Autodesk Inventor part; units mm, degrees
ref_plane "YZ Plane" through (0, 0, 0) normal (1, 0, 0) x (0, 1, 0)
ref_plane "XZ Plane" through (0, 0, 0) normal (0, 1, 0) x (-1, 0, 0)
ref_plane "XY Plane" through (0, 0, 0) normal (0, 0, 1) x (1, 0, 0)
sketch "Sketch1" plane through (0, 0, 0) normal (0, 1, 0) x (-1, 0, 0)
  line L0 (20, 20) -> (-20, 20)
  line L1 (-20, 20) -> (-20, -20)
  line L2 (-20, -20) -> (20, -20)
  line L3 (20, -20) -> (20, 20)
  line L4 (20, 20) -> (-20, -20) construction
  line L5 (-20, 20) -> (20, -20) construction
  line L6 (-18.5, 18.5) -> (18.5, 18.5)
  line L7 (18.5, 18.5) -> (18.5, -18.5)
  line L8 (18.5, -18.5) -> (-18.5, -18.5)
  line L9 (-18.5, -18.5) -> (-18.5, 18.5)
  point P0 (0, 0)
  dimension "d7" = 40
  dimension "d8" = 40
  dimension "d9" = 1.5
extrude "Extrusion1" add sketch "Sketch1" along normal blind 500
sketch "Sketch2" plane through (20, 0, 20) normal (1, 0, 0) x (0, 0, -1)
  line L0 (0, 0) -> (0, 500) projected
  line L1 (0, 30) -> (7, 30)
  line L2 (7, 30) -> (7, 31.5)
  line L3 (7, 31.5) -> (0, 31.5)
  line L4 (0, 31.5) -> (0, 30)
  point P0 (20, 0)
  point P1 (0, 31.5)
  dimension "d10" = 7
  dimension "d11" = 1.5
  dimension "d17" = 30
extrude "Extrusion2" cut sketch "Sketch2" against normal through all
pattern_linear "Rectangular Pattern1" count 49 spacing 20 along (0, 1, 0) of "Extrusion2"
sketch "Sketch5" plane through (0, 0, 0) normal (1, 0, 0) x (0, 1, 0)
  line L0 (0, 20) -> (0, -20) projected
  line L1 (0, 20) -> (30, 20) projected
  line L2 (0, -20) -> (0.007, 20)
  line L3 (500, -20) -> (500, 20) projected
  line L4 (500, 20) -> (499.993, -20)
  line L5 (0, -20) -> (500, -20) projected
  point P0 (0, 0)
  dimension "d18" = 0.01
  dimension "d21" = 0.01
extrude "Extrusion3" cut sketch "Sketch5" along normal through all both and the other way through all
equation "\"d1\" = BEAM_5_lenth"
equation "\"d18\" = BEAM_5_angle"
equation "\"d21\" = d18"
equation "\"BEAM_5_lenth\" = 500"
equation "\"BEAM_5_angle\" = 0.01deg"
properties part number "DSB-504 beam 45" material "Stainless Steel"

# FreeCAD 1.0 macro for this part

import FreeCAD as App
import Part
import Sketcher
from FreeCAD import Vector
Q = App.Units.Quantity


def add_polygon(sketch, points):
    """Adds a closed chain of lines whose ends are joined by coincident constraints."""
    first, n = sketch.GeometryCount, len(points)
    for a, b in zip(points, points[1:] + points[:1]):
        sketch.addGeometry(Part.LineSegment(App.Vector(*a, 0), App.Vector(*b, 0)), False)
    for i in range(n):
        sketch.addConstraint(Sketcher.Constraint("Coincident", first + i, 2, first + (i + 1) % n, 1))

doc = App.newDocument("Part")
body = doc.addObject("PartDesign::Body", "Body")

# Sketch on XZ plane
sketch1 = body.newObject("Sketcher::SketchObject", "Sketch")
sketch1.AttachmentSupport = (doc.getObject("XZ_Plane"), [""])
sketch1.MapMode = "FlatFace"
add_polygon(sketch1, [(-20, -20), (-20, 20), (20, 20), (20, -20)])  # lines 0-3
add_polygon(sketch1, [(18.5, -18.5), (18.5, 18.5), (-18.5, 18.5), (-18.5, -18.5)])  # lines 4-7
sketch1.addConstraint(Sketcher.Constraint("Vertical", 0))
sketch1.addConstraint(Sketcher.Constraint("Horizontal", 1))
sketch1.addConstraint(Sketcher.Constraint("Vertical", 2))
sketch1.addConstraint(Sketcher.Constraint("Horizontal", 3))
sketch1.addConstraint(Sketcher.Constraint("Vertical", 4))
sketch1.addConstraint(Sketcher.Constraint("Horizontal", 5))
sketch1.addConstraint(Sketcher.Constraint("Vertical", 6))
sketch1.addConstraint(Sketcher.Constraint("Horizontal", 7))
sketch1.addConstraint(Sketcher.Constraint("Symmetric", 0, 2, 2, 2, -1, 1))
sketch1.addConstraint(Sketcher.Constraint("Symmetric", 4, 2, 6, 2, -1, 1))
sketch1.addConstraint(Sketcher.Constraint("Equal", 3, 0))
sketch1.addConstraint(Sketcher.Constraint("Equal", 7, 4))
sketch1.addConstraint(Sketcher.Constraint("DistanceX", 1, 1, 1, 2, Q("40 mm")))
sketch1.addConstraint(Sketcher.Constraint("DistanceX", 4, 2, 1, 2, Q("1.5 mm")))
pad1 = body.newObject("PartDesign::Pad", "Pad")
pad1.Profile = sketch1
pad1.Length = 500
pad1.Reversed = True

# Sketch on YZ plane
sketch2 = body.newObject("Sketcher::SketchObject", "Sketch001")
sketch2.AttachmentSupport = (doc.getObject("YZ_Plane"), [""])
sketch2.MapMode = "FlatFace"
sketch2.AttachmentOffset = App.Placement(Vector(0, 0, 20), App.Rotation())
add_polygon(sketch2, [(31.5, 20), (30, 20), (30, 13), (31.5, 13)])  # lines 0-3
sketch2.addConstraint(Sketcher.Constraint("Horizontal", 0))
sketch2.addConstraint(Sketcher.Constraint("Vertical", 1))
sketch2.addConstraint(Sketcher.Constraint("Horizontal", 2))
sketch2.addConstraint(Sketcher.Constraint("Vertical", 3))
sketch2.addConstraint(Sketcher.Constraint("DistanceY", 1, 2, 1, 1, Q("7 mm")))
sketch2.addConstraint(Sketcher.Constraint("DistanceX", 0, 2, 0, 1, Q("1.5 mm")))
sketch2.addConstraint(Sketcher.Constraint("DistanceX", -1, 1, 0, 2, Q("30 mm")))
sketch2.addConstraint(Sketcher.Constraint("DistanceY", -1, 1, 0, 2, Q("20 mm")))
pocket1 = body.newObject("PartDesign::Pocket", "Pocket")
pocket1.Profile = sketch2
pocket1.Type = "ThroughAll"
doc.recompute()

linearpattern = body.newObject("PartDesign::LinearPattern", "LinearPattern")
linearpattern.Originals = [pocket1]
linearpattern.Direction = (doc.getObject("Y_Axis"), [""])
linearpattern.Mode = "offset"
linearpattern.Offset = 20
linearpattern.Occurrences = 49
body.Tip = linearpattern

# Sketch on YZ plane
sketch3 = body.newObject("Sketcher::SketchObject", "Sketch002")
sketch3.AttachmentSupport = (doc.getObject("YZ_Plane"), [""])
sketch3.MapMode = "FlatFace"
add_polygon(sketch3, [(0.007, 20), (0, 20), (0, -20)])  # lines 0-2
add_polygon(sketch3, [(500, 20), (499.993, -20), (500, -20)])  # lines 3-5
sketch3.addConstraint(Sketcher.Constraint("Horizontal", 0))
sketch3.addConstraint(Sketcher.Constraint("Vertical", 1))
sketch3.addConstraint(Sketcher.Constraint("Horizontal", 4))
sketch3.addConstraint(Sketcher.Constraint("Vertical", 5))
sketch3.addConstraint(Sketcher.Constraint("Symmetric", 0, 2, 1, 2, -1, 1))
sketch3.addConstraint(Sketcher.Constraint("Parallel", 2, 3))
sketch3.addConstraint(Sketcher.Constraint("Horizontal", 1, 2, 3, 2))
sketch3.addConstraint(Sketcher.Constraint("Horizontal", 2, 2, 5, 2))
sketch3.addConstraint(Sketcher.Constraint("DistanceY", 1, 2, 1, 1, Q("40 mm")))
sketch3.addConstraint(Sketcher.Constraint("DistanceX", -1, 1, 4, 2, Q("500 mm")))
sketch3.addConstraint(Sketcher.Constraint("Angle", 2, Q("89.99 deg")))
pocket2 = body.newObject("PartDesign::Pocket", "Pocket001")
pocket2.Profile = sketch3
pocket2.Type = "ThroughAll"
pocket2.Midplane = True

doc.recompute()
